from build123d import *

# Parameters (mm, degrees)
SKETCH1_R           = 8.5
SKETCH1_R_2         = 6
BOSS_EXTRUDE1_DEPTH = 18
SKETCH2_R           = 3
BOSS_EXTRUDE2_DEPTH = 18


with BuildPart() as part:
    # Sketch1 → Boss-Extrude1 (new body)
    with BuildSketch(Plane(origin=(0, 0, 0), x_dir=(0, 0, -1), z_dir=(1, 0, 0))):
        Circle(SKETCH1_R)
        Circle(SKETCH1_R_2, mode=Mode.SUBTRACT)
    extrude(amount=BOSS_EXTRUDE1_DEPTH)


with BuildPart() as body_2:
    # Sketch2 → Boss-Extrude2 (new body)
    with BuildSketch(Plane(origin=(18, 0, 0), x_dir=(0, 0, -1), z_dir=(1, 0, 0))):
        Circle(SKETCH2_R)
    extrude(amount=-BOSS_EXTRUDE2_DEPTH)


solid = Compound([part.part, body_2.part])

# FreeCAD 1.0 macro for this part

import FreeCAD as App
import Part
import Sketcher

doc = App.newDocument("Part")
body = doc.addObject("PartDesign::Body", "Body")

sketch1 = doc.addObject("Sketcher::SketchObject", "Sketch")
body.addObject(sketch1)
sketch1.AttachmentSupport = (doc.YZ_Plane, [""])
sketch1.MapMode = "FlatFace"
sketch1.addGeometry(Part.Circle(App.Vector(0, 0, 0), App.Vector(0, 0, 1), 8.5), False)
sketch1.addGeometry(Part.Circle(App.Vector(0, 0, 0), App.Vector(0, 0, 1), 6), False)
sketch1.addConstraint(Sketcher.Constraint("Coincident", 0, 3, -1, 1))
sketch1.addConstraint(Sketcher.Constraint("Coincident", 1, 3, -1, 1))
sketch1.addConstraint(Sketcher.Constraint("Diameter", 0, 17.0))
sketch1.addConstraint(Sketcher.Constraint("Diameter", 1, 12.0))
pad1 = doc.addObject("PartDesign::Pad", "Pad")
body.addObject(pad1)
pad1.Profile = sketch1
pad1.Length = 18
body2 = doc.addObject("PartDesign::Body", "Body001")

sketch2 = doc.addObject("Sketcher::SketchObject", "Sketch001")
body2.addObject(sketch2)
sketch2.AttachmentSupport = (doc.getObject("YZ_Plane001"), [""])
sketch2.MapMode = "FlatFace"
sketch2.AttachmentOffset = App.Placement(App.Vector(0, 0, 18), App.Rotation())
sketch2.addGeometry(Part.Circle(App.Vector(0, 0, 0), App.Vector(0, 0, 1), 3), False)
sketch2.addConstraint(Sketcher.Constraint("Coincident", 0, 3, -1, 1))
sketch2.addConstraint(Sketcher.Constraint("Diameter", 0, 6.0))
pad2 = doc.addObject("PartDesign::Pad", "Pad001")
body2.addObject(pad2)
pad2.Profile = sketch2
pad2.Length = 18
pad2.Reversed = True

doc.recompute()
